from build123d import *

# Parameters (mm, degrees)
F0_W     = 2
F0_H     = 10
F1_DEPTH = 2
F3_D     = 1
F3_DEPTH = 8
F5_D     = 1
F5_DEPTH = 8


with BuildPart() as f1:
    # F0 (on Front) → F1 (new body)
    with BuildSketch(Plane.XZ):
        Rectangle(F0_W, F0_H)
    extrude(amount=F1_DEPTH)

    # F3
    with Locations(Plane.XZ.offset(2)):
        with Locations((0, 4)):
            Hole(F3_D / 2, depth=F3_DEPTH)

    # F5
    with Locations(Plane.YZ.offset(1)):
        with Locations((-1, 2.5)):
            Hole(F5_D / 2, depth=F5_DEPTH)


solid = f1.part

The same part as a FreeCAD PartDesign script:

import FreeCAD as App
import Part
import Sketcher
from FreeCAD import Vector


def add_polygon(sketch, points):
    """Adds a closed chain of lines whose ends are joined by coincident constraints."""
    first, n = sketch.GeometryCount, len(points)
    for a, b in zip(points, points[1:] + points[:1]):
        sketch.addGeometry(Part.LineSegment(App.Vector(*a, 0), App.Vector(*b, 0)), False)
    for i in range(n):
        sketch.addConstraint(Sketcher.Constraint("Coincident", first + i, 2, first + (i + 1) % n, 1))

doc = App.newDocument("Part")
body = doc.addObject("PartDesign::Body", "Body")

sketch1 = body.newObject("Sketcher::SketchObject", "Sketch")
sketch1.AttachmentSupport = (doc.getObject("XZ_Plane"), [""])
sketch1.MapMode = "FlatFace"
add_polygon(sketch1, [(-1, 5), (-1, -5), (1, -5), (1, 5)])
sketch1.addConstraint(Sketcher.Constraint("Vertical", 0))
sketch1.addConstraint(Sketcher.Constraint("Horizontal", 1))
sketch1.addConstraint(Sketcher.Constraint("Vertical", 2))
sketch1.addConstraint(Sketcher.Constraint("Horizontal", 3))
sketch1.addConstraint(Sketcher.Constraint("Symmetric", 0, 2, 2, 2, -1, 1))
sketch1.addConstraint(Sketcher.Constraint("DistanceX", 1, 1, 1, 2, 2.0))
sketch1.addConstraint(Sketcher.Constraint("DistanceY", 0, 2, 0, 1, 10.0))
pad1 = body.newObject("PartDesign::Pad", "Pad")
pad1.Profile = sketch1
pad1.Length = 2

sketch2 = body.newObject("Sketcher::SketchObject", "Sketch001")
sketch2.AttachmentSupport = (doc.getObject("XZ_Plane"), [""])
sketch2.MapMode = "FlatFace"
sketch2.AttachmentOffset = App.Placement(Vector(0, 0, 2), App.Rotation())
sketch2.addGeometry(Part.Circle(Vector(0, 4, 0), Vector(0, 0, 1), 0.5), False)
sketch2.addConstraint(Sketcher.Constraint("PointOnObject", 0, 3, -2))
sketch2.addConstraint(Sketcher.Constraint("Diameter", 0, 1.0))
sketch2.addConstraint(Sketcher.Constraint("DistanceY", -1, 1, 0, 3, 4.0))
doc.recompute()
hole = body.newObject("PartDesign::Hole", "Hole")
hole.Profile = sketch2
hole.ThreadType = "None"
hole.Diameter = 1
hole.DepthType = "Dimension"
hole.Depth = 8
hole.DrillPoint = "Flat"

sketch3 = body.newObject("Sketcher::SketchObject", "Sketch002")
sketch3.AttachmentSupport = (doc.getObject("YZ_Plane"), [""])
sketch3.MapMode = "FlatFace"
sketch3.AttachmentOffset = App.Placement(Vector(0, 0, 1), App.Rotation())
sketch3.addGeometry(Part.Circle(Vector(-1, 2.5, 0), Vector(0, 0, 1), 0.5), False)
sketch3.addConstraint(Sketcher.Constraint("Diameter", 0, 1.0))
sketch3.addConstraint(Sketcher.Constraint("DistanceX", 0, 3, -1, 1, 1.0))
sketch3.addConstraint(Sketcher.Constraint("DistanceY", -1, 1, 0, 3, 2.5))
doc.recompute()
hole2 = body.newObject("PartDesign::Hole", "Hole001")
hole2.Profile = sketch3
hole2.ThreadType = "None"
hole2.Diameter = 1
hole2.DepthType = "Dimension"
hole2.Depth = 8
hole2.DrillPoint = "Flat"

doc.recompute()
